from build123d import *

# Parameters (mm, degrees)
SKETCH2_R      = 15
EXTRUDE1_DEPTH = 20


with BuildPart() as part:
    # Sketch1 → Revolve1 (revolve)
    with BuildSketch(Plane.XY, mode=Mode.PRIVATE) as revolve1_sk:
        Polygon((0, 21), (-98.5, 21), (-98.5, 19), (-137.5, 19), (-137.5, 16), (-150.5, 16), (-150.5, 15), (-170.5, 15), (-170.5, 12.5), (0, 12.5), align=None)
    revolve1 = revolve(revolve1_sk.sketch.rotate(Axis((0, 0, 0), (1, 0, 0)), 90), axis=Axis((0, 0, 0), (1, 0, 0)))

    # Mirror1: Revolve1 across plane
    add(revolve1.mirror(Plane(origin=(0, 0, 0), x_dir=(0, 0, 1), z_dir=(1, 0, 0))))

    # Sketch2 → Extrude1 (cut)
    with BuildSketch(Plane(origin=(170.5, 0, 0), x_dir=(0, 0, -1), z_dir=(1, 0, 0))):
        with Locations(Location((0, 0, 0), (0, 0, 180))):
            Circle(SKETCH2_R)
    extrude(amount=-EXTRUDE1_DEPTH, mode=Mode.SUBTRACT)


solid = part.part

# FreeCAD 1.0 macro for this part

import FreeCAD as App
import Part
import Sketcher
from FreeCAD import Vector


def add_polygon(sketch, points):
    """Adds a closed chain of lines whose ends are joined by coincident constraints."""
    first, n = sketch.GeometryCount, len(points)
    for a, b in zip(points, points[1:] + points[:1]):
        sketch.addGeometry(Part.LineSegment(App.Vector(*a, 0), App.Vector(*b, 0)), False)
    for i in range(n):
        sketch.addConstraint(Sketcher.Constraint("Coincident", first + i, 2, first + (i + 1) % n, 1))

doc = App.newDocument("Part")
body = doc.addObject("PartDesign::Body", "Body")

sketch1 = body.newObject("Sketcher::SketchObject", "Sketch")
sketch1.AttachmentSupport = (doc.getObject("XY_Plane"), [""])
sketch1.MapMode = "FlatFace"
add_polygon(sketch1, [(0, 21), (-98.5, 21), (-98.5, 19), (-137.5, 19), (-137.5, 16), (-150.5, 16), (-150.5, 15), (-170.5, 15), (-170.5, 12.5), (0, 12.5)])
sketch1.addConstraint(Sketcher.Constraint("Horizontal", 0))
sketch1.addConstraint(Sketcher.Constraint("Vertical", 1))
sketch1.addConstraint(Sketcher.Constraint("Horizontal", 2))
sketch1.addConstraint(Sketcher.Constraint("Vertical", 3))
sketch1.addConstraint(Sketcher.Constraint("Horizontal", 4))
sketch1.addConstraint(Sketcher.Constraint("Vertical", 5))
sketch1.addConstraint(Sketcher.Constraint("Horizontal", 6))
sketch1.addConstraint(Sketcher.Constraint("Vertical", 7))
sketch1.addConstraint(Sketcher.Constraint("Horizontal", 8))
sketch1.addConstraint(Sketcher.Constraint("Vertical", 9))
sketch1.addConstraint(Sketcher.Constraint("PointOnObject", 8, 2, -2))
sketch1.addConstraint(Sketcher.Constraint("DistanceX", 2, 2, 2, 1, 39.0))
sketch1.addConstraint(Sketcher.Constraint("DistanceX", 4, 2, 4, 1, 13.0))
sketch1.addConstraint(Sketcher.Constraint("DistanceX", 6, 2, 6, 1, 20.0))
sketch1.addConstraint(Sketcher.Constraint("DistanceY", 1, 2, 1, 1, 2.0))
sketch1.addConstraint(Sketcher.Constraint("DistanceY", 3, 2, 3, 1, 3.0))
sketch1.addConstraint(Sketcher.Constraint("DistanceY", 5, 2, 5, 1, 1.0))
sketch1.addConstraint(Sketcher.Constraint("DistanceX", 0, 2, 0, 1, 98.5))
sketch1.addConstraint(Sketcher.Constraint("DistanceY", 7, 2, 7, 1, 2.5))
sketch1.addConstraint(Sketcher.Constraint("DistanceY", -1, 1, 0, 2, 21.0))
revolution = body.newObject("PartDesign::Revolution", "Revolution")
revolution.Profile = sketch1
revolution.ReferenceAxis = (sketch1, ["H_Axis"])
revolution.Angle = 360
doc.recompute()

mirrored = body.newObject("PartDesign::Mirrored", "Mirrored")
mirrored.Originals = [revolution]
mirrored.MirrorPlane = (doc.getObject("YZ_Plane"), [""])
body.Tip = mirrored

sketch2 = body.newObject("Sketcher::SketchObject", "Sketch001")
sketch2.AttachmentSupport = (doc.getObject("YZ_Plane"), [""])
sketch2.MapMode = "FlatFace"
sketch2.AttachmentOffset = App.Placement(Vector(0, 0, 170.5), App.Rotation())
sketch2.addGeometry(Part.Circle(Vector(0, 0, 0), Vector(0, 0, 1), 15), False)
sketch2.addConstraint(Sketcher.Constraint("Coincident", 0, 3, -1, 1))
sketch2.addConstraint(Sketcher.Constraint("Diameter", 0, 30.0))
pocket1 = body.newObject("PartDesign::Pocket", "Pocket")
pocket1.Profile = sketch2
pocket1.Length = 20

doc.recompute()
